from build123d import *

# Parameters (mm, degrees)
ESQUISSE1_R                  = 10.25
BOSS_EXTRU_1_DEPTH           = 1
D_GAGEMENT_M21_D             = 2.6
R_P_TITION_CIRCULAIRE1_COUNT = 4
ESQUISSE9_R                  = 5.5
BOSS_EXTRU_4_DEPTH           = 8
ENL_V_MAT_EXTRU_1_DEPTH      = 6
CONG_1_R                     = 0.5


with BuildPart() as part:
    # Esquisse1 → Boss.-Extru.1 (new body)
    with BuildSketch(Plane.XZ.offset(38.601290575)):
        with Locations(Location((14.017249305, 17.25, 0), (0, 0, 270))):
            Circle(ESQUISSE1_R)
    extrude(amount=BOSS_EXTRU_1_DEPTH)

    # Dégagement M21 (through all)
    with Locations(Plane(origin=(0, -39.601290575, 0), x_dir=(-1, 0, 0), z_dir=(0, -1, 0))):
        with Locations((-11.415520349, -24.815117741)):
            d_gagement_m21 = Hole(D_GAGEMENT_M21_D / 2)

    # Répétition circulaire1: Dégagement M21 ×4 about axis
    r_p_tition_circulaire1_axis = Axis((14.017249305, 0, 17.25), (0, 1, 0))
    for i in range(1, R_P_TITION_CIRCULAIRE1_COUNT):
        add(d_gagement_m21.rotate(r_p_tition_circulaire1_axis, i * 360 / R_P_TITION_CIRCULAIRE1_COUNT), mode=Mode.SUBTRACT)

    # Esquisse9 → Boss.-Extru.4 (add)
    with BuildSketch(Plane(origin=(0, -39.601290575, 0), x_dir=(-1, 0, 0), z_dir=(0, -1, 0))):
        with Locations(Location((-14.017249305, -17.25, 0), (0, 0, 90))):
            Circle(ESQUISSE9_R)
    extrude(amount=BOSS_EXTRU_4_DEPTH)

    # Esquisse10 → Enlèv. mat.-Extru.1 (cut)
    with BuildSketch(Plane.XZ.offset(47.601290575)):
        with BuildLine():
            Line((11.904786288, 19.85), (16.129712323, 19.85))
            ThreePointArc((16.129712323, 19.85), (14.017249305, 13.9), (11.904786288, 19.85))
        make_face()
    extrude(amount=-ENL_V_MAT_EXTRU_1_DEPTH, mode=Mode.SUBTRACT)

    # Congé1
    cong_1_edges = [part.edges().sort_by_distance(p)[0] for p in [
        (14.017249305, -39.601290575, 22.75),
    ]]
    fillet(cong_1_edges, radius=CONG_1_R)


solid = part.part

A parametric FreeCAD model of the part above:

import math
import FreeCAD as App
import Part
import Sketcher
from FreeCAD import Vector


def edges_at(feature, points):
    """Names of the edges that pass closest to the given points."""
    edges = feature.Shape.Edges
    near = lambda p: min(range(len(edges)), key=lambda i: edges[i].distToShape(Part.Vertex(*p))[0])
    return sorted({f"Edge{near(p) + 1}" for p in points})

doc = App.newDocument("Part")
params = doc.addObject("Spreadsheet::Sheet", "Params")
for row, (alias, value) in enumerate([
    ("sketch1_diameter", "20.5 mm"),
    ("pad1_length", "1 mm"),
    ("sketch2_diameter", "2.6 mm"),
    ("hole_diameter", "2.6 mm"),
    ("sketch3_diameter", "11 mm"),
    ("pad2_length", "8 mm"),
    ("sketch4_radius", "3.35 mm"),
    ("pocket1_length", "6 mm"),
    ("fillet_radius", "0.5 mm"),
], start=1):
    params.set(f"A{row}", alias)
    params.set(f"B{row}", "=" + value)
    params.setAlias(f"B{row}", alias)

body = doc.addObject("PartDesign::Body", "Body")

# Sketch on XZ plane
sketch1 = doc.addObject("Sketcher::SketchObject", "Sketch")
body.addObject(sketch1)
sketch1.AttachmentSupport = (doc.XZ_Plane, [""])
sketch1.MapMode = "FlatFace"
sketch1.AttachmentOffset = App.Placement(Vector(0, 0, 38.601291), App.Rotation())
sketch1.addGeometry(Part.Circle(Vector(14, 17, 0), Vector(0, 0, 1), 10), False)
sketch1.addConstraint([
    Sketcher.Constraint("Diameter", 0, 20.5),
    Sketcher.Constraint("DistanceY", -1, 1, 0, 3, 17.25),
    Sketcher.Constraint("DistanceX", -1, 1, 0, 3, 14.017249),
])
sketch1.setExpression("Constraints[0]", "Params.sketch1_diameter")
pad1 = doc.addObject("PartDesign::Pad", "Pad")
body.addObject(pad1)
pad1.Profile = sketch1
pad1.setExpression("Length", "Params.pad1_length")

# Sketch on XZ plane
sketch2 = doc.addObject("Sketcher::SketchObject", "Sketch001")
body.addObject(sketch2)
sketch2.AttachmentSupport = (doc.XZ_Plane, [""])
sketch2.MapMode = "FlatFace"
sketch2.AttachmentOffset = App.Placement(Vector(0, 0, 39.601291), App.Rotation())
sketch2.addGeometry(Part.Circle(Vector(11.4, 24.8, 0), Vector(0, 0, 1), 1.3), False)
sketch2.addConstraint([
    Sketcher.Constraint("Diameter", 0, 2.6),
    Sketcher.Constraint("DistanceX", -1, 1, 0, 3, 11.41552),
    Sketcher.Constraint("DistanceY", -1, 1, 0, 3, 24.815118),
])
sketch2.setExpression("Constraints[0]", "Params.sketch2_diameter")
doc.recompute()
hole = doc.addObject("PartDesign::Hole", "Hole")
body.addObject(hole)
hole.Profile = sketch2
hole.ThreadType = "None"
hole.setExpression("Diameter", "Params.hole_diameter")
hole.DepthType = "ThroughAll"
doc.recompute()

datumline = doc.addObject("PartDesign::Line", "DatumLine")
body.addObject(datumline)
datumline.Placement = App.Placement(Vector(14.017249, 0, 17.25), App.Rotation(Vector(0, 0, 1), Vector(0, 1, 0)))
polarpattern = doc.addObject("PartDesign::PolarPattern", "PolarPattern")
body.addObject(polarpattern)
polarpattern.Originals = [hole]
polarpattern.Axis = (datumline, [""])
polarpattern.Angle = 360
polarpattern.Occurrences = 4
body.Tip = polarpattern

# Sketch on XZ plane
sketch3 = doc.addObject("Sketcher::SketchObject", "Sketch002")
body.addObject(sketch3)
sketch3.AttachmentSupport = (doc.XZ_Plane, [""])
sketch3.MapMode = "FlatFace"
sketch3.AttachmentOffset = App.Placement(Vector(0, 0, 39.601291), App.Rotation())
sketch3.addGeometry(Part.Circle(Vector(14, 17, 0), Vector(0, 0, 1), 6), False)
sketch3.addConstraint([
    Sketcher.Constraint("Diameter", 0, 11.0),
    Sketcher.Constraint("DistanceY", -1, 1, 0, 3, 17.25),
    Sketcher.Constraint("DistanceX", -1, 1, 0, 3, 14.017249),
])
sketch3.setExpression("Constraints[0]", "Params.sketch3_diameter")
pad2 = doc.addObject("PartDesign::Pad", "Pad001")
body.addObject(pad2)
pad2.Profile = sketch3
pad2.setExpression("Length", "Params.pad2_length")

# Sketch on XZ plane
sketch4 = doc.addObject("Sketcher::SketchObject", "Sketch003")
body.addObject(sketch4)
sketch4.AttachmentSupport = (doc.XZ_Plane, [""])
sketch4.MapMode = "FlatFace"
sketch4.AttachmentOffset = App.Placement(Vector(0, 0, 47.601291), App.Rotation())
sketch4.addGeometry([
    Part.LineSegment(Vector(16.1, 19.9, 0), Vector(11.9, 19.9, 0)),
    Part.ArcOfCircle(Part.Circle(Vector(14, 17.2, 0), Vector(0, 0, 1), 3.4), math.radians(129), math.radians(411)),
], False)
sketch4.addConstraint([
    Sketcher.Constraint("Coincident", 0, 1, 1, 2),
    Sketcher.Constraint("Coincident", 1, 1, 0, 2),
    Sketcher.Constraint("Horizontal", 0),
    Sketcher.Constraint("Radius", 1, 3.35),
    Sketcher.Constraint("DistanceY", 1, 3, 0, 1, 2.6),
    Sketcher.Constraint("DistanceY", -1, 1, 1, 3, 17.25),
    Sketcher.Constraint("DistanceX", -1, 1, 1, 3, 14.017249),
])
sketch4.setExpression("Constraints[3]", "Params.sketch4_radius")
pocket1 = doc.addObject("PartDesign::Pocket", "Pocket")
body.addObject(pocket1)
pocket1.Profile = sketch4
pocket1.setExpression("Length", "Params.pocket1_length")
doc.recompute()

fillet = doc.addObject("PartDesign::Fillet", "Fillet")
body.addObject(fillet)
fillet.Base = (pocket1, edges_at(pocket1, [(14.017, -39.601, 22.75)]))
fillet.setExpression("Radius", "Params.fillet_radius")

doc.recompute()
